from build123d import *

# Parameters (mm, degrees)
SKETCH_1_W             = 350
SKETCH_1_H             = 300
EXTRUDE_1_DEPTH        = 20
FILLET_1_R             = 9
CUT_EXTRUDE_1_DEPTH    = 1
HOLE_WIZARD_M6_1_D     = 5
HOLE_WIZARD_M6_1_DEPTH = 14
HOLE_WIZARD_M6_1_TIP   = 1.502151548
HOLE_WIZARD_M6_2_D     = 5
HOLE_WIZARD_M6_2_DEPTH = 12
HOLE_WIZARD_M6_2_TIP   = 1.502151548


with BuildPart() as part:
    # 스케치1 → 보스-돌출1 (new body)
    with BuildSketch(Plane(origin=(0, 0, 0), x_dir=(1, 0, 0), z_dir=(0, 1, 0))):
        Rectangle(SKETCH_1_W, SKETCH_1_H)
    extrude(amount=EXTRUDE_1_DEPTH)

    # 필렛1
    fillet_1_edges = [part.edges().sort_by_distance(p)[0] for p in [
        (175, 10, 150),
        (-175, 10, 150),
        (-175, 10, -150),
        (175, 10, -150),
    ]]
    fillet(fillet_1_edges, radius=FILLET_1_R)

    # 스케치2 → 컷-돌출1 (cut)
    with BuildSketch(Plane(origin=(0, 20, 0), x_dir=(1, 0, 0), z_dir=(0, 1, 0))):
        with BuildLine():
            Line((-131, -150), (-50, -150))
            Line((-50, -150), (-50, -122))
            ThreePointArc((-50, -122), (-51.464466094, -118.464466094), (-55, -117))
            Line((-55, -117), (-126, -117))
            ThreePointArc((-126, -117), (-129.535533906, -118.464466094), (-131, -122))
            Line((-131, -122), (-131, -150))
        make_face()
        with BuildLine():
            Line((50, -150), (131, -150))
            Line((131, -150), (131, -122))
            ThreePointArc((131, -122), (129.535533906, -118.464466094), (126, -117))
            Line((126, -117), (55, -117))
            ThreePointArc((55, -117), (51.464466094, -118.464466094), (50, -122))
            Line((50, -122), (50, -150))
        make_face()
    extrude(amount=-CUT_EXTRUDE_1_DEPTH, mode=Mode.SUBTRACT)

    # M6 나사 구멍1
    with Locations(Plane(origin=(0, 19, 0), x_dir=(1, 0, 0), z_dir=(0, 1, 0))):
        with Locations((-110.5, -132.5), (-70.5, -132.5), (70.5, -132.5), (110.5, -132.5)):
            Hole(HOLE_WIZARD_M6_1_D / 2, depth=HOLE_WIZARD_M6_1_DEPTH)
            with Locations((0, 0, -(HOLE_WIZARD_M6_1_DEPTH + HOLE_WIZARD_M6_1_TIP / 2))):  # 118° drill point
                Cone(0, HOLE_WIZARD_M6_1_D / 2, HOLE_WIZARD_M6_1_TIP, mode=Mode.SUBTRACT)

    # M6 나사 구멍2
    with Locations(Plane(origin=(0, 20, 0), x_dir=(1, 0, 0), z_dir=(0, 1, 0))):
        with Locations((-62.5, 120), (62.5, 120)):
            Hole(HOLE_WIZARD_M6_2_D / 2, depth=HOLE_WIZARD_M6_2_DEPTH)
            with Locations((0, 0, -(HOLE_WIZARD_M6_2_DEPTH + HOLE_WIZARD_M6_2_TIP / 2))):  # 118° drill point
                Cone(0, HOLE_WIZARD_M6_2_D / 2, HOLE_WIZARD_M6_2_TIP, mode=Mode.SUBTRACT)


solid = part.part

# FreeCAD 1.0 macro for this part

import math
import FreeCAD as App
import Part
import Sketcher

V = App.Vector
Q = App.Units.Quantity


def edges_at(feature, points):
    """Names of the edges that pass closest to the given points."""
    edges = feature.Shape.Edges
    near = lambda p: min(range(len(edges)), key=lambda i: edges[i].distToShape(Part.Vertex(*p))[0])
    return sorted({f"Edge{near(p) + 1}" for p in points})


def add_polygon(sketch, points):
    """Adds a closed chain of lines whose ends are joined by coincident constraints."""
    first, n = sketch.GeometryCount, len(points)
    for a, b in zip(points, points[1:] + points[:1]):
        sketch.addGeometry(Part.LineSegment(App.Vector(*a, 0), App.Vector(*b, 0)), False)
    for i in range(n):
        sketch.addConstraint(Sketcher.Constraint("Coincident", first + i, 2, first + (i + 1) % n, 1))

doc = App.newDocument("Part")
body = doc.addObject("PartDesign::Body", "Body")

# Sketch on XZ plane
sketch1 = doc.addObject("Sketcher::SketchObject", "Sketch")
body.addObject(sketch1)
sketch1.AttachmentSupport = (doc.XZ_Plane, [""])
sketch1.MapMode = "FlatFace"
add_polygon(sketch1, [(-175, -150), (-175, 150), (175, 150), (175, -150)])  # lines 0-3
sketch1.addConstraint([
    Sketcher.Constraint("Vertical", 0),
    Sketcher.Constraint("Horizontal", 1),
    Sketcher.Constraint("Vertical", 2),
    Sketcher.Constraint("Horizontal", 3),
    Sketcher.Constraint("Symmetric", 0, 2, 2, 2, -1, 1),
    Sketcher.Constraint("DistanceX", 1, 1, 1, 2, Q("350 mm")),
    Sketcher.Constraint("DistanceY", 0, 1, 0, 2, Q("300 mm")),
])
pad1 = doc.addObject("PartDesign::Pad", "Pad")
body.addObject(pad1)
pad1.Profile = sketch1
pad1.Length = 20
pad1.Reversed = True
doc.recompute()

fillet = doc.addObject("PartDesign::Fillet", "Fillet")
body.addObject(fillet)
fillet.Base = (pad1, edges_at(pad1, [
    (175, 10, 150),
    (-175, 10, 150),
    (-175, 10, -150),
    (175, 10, -150),
]))
fillet.Radius = 9

# Sketch on XZ plane
sketch2 = doc.addObject("Sketcher::SketchObject", "Sketch001")
body.addObject(sketch2)
sketch2.AttachmentSupport = (doc.XZ_Plane, [""])
sketch2.MapMode = "FlatFace"
sketch2.AttachmentOffset = App.Placement(V(0, 0, -20), App.Rotation())
sketch2.addGeometry([
    Part.LineSegment(V(-131, 150, 0), V(-50, 150, 0)),  # 0
    Part.LineSegment(V(-50, 150, 0), V(-50, 122, 0)),  # 1
    Part.ArcOfCircle(Part.Circle(V(-55, 122, 0), V(0, 0, 1), 5), math.radians(-90), math.radians(0)),  # 2
    Part.LineSegment(V(-55, 117, 0), V(-126, 117, 0)),  # 3
    Part.ArcOfCircle(Part.Circle(V(-126, 122, 0), V(0, 0, 1), 5), math.radians(180), math.radians(270)),  # 4
    Part.LineSegment(V(-131, 122, 0), V(-131, 150, 0)),  # 5
    Part.LineSegment(V(50, 150, 0), V(131, 150, 0)),  # 6
    Part.LineSegment(V(131, 150, 0), V(131, 122, 0)),  # 7
    Part.ArcOfCircle(Part.Circle(V(126, 122, 0), V(0, 0, 1), 5), math.radians(-90), math.radians(0)),  # 8
    Part.LineSegment(V(126, 117, 0), V(55, 117, 0)),  # 9
    Part.ArcOfCircle(Part.Circle(V(55, 122, 0), V(0, 0, 1), 5), math.radians(180), math.radians(270)),  # 10
    Part.LineSegment(V(50, 122, 0), V(50, 150, 0)),  # 11
], False)
sketch2.addConstraint([
    Sketcher.Constraint("Coincident", 0, 2, 1, 1),
    Sketcher.Constraint("Tangent", 1, 2, 2, 2),
    Sketcher.Constraint("Tangent", 2, 1, 3, 1),
    Sketcher.Constraint("Tangent", 3, 2, 4, 2),
    Sketcher.Constraint("Tangent", 4, 1, 5, 1),
    Sketcher.Constraint("Coincident", 5, 2, 0, 1),
    Sketcher.Constraint("Coincident", 6, 2, 7, 1),
    Sketcher.Constraint("Tangent", 7, 2, 8, 2),
    Sketcher.Constraint("Tangent", 8, 1, 9, 1),
    Sketcher.Constraint("Tangent", 9, 2, 10, 2),
    Sketcher.Constraint("Tangent", 10, 1, 11, 1),
    Sketcher.Constraint("Coincident", 11, 2, 6, 1),
    Sketcher.Constraint("Horizontal", 0),
    Sketcher.Constraint("Vertical", 1),
    Sketcher.Constraint("Horizontal", 3),
    Sketcher.Constraint("Vertical", 5),
    Sketcher.Constraint("Horizontal", 6),
    Sketcher.Constraint("Vertical", 7),
    Sketcher.Constraint("Horizontal", 9),
    Sketcher.Constraint("Vertical", 11),
    Sketcher.Constraint("Equal", 2, 4),
    Sketcher.Constraint("Equal", 4, 8),
    Sketcher.Constraint("Equal", 8, 10),
    Sketcher.Constraint("Symmetric", 4, 3, 8, 3, -2),
    Sketcher.Constraint("Symmetric", 0, 2, 11, 2, -2),
    Sketcher.Constraint("Radius", 2, Q("5 mm")),
    Sketcher.Constraint("DistanceX", 0, 1, 0, 2, Q("81 mm")),
    Sketcher.Constraint("DistanceY", 1, 2, 1, 1, Q("28 mm")),
    Sketcher.Constraint("DistanceX", 2, 3, -1, 1, Q("55 mm")),
    Sketcher.Constraint("DistanceY", -1, 1, 2, 3, Q("122 mm")),
])
pocket1 = doc.addObject("PartDesign::Pocket", "Pocket")
body.addObject(pocket1)
pocket1.Profile = sketch2
pocket1.Length = 1
pocket1.Reversed = True

# Sketch on XZ plane
sketch3 = doc.addObject("Sketcher::SketchObject", "Sketch002")
body.addObject(sketch3)
sketch3.AttachmentSupport = (doc.XZ_Plane, [""])
sketch3.MapMode = "FlatFace"
sketch3.AttachmentOffset = App.Placement(V(0, 0, -19), App.Rotation())
sketch3.addGeometry([
    Part.Circle(V(-110.5, 132.5, 0), V(0, 0, 1), 2.5),
    Part.Circle(V(-70.5, 132.5, 0), V(0, 0, 1), 2.5),
    Part.Circle(V(70.5, 132.5, 0), V(0, 0, 1), 2.5),
    Part.Circle(V(110.5, 132.5, 0), V(0, 0, 1), 2.5),
], False)
sketch3.addConstraint([
    Sketcher.Constraint("Equal", 0, 1),
    Sketcher.Constraint("Equal", 1, 2),
    Sketcher.Constraint("Equal", 2, 3),
    Sketcher.Constraint("Symmetric", 1, 3, 2, 3, -2),
    Sketcher.Constraint("Symmetric", 0, 3, 3, 3, -2),
    Sketcher.Constraint("Horizontal", 0, 3, 1, 3),
    Sketcher.Constraint("Diameter", 0, Q("5 mm")),
    Sketcher.Constraint("DistanceX", 0, 3, 1, 3, Q("40 mm")),
    Sketcher.Constraint("DistanceX", 1, 3, 2, 3, Q("141 mm")),
    Sketcher.Constraint("DistanceY", -1, 1, 0, 3, Q("132.5 mm")),
])
doc.recompute()
hole = doc.addObject("PartDesign::Hole", "Hole")
body.addObject(hole)
hole.Profile = sketch3
hole.ThreadType = "None"
hole.Diameter = 5
hole.DepthType = "Dimension"
hole.Depth = 14
hole.DrillPoint = "Angled"
hole.DrillPointAngle = 118
hole.Reversed = True

# Sketch on XZ plane
sketch4 = doc.addObject("Sketcher::SketchObject", "Sketch003")
body.addObject(sketch4)
sketch4.AttachmentSupport = (doc.XZ_Plane, [""])
sketch4.MapMode = "FlatFace"
sketch4.AttachmentOffset = App.Placement(V(0, 0, -20), App.Rotation())
sketch4.addGeometry([
    Part.Circle(V(-62.5, -120, 0), V(0, 0, 1), 2.5),
    Part.Circle(V(62.5, -120, 0), V(0, 0, 1), 2.5),
], False)
sketch4.addConstraint([
    Sketcher.Constraint("Equal", 0, 1),
    Sketcher.Constraint("Symmetric", 0, 3, 1, 3, -2),
    Sketcher.Constraint("Diameter", 0, Q("5 mm")),
    Sketcher.Constraint("DistanceY", 0, 3, -1, 1, Q("120 mm")),
    Sketcher.Constraint("DistanceX", 0, 3, 1, 3, Q("125 mm")),
])
doc.recompute()
hole2 = doc.addObject("PartDesign::Hole", "Hole001")
body.addObject(hole2)
hole2.Profile = sketch4
hole2.ThreadType = "None"
hole2.Diameter = 5
hole2.DepthType = "Dimension"
hole2.Depth = 12
hole2.DrillPoint = "Angled"
hole2.DrillPointAngle = 118
hole2.Reversed = True

doc.recompute()
